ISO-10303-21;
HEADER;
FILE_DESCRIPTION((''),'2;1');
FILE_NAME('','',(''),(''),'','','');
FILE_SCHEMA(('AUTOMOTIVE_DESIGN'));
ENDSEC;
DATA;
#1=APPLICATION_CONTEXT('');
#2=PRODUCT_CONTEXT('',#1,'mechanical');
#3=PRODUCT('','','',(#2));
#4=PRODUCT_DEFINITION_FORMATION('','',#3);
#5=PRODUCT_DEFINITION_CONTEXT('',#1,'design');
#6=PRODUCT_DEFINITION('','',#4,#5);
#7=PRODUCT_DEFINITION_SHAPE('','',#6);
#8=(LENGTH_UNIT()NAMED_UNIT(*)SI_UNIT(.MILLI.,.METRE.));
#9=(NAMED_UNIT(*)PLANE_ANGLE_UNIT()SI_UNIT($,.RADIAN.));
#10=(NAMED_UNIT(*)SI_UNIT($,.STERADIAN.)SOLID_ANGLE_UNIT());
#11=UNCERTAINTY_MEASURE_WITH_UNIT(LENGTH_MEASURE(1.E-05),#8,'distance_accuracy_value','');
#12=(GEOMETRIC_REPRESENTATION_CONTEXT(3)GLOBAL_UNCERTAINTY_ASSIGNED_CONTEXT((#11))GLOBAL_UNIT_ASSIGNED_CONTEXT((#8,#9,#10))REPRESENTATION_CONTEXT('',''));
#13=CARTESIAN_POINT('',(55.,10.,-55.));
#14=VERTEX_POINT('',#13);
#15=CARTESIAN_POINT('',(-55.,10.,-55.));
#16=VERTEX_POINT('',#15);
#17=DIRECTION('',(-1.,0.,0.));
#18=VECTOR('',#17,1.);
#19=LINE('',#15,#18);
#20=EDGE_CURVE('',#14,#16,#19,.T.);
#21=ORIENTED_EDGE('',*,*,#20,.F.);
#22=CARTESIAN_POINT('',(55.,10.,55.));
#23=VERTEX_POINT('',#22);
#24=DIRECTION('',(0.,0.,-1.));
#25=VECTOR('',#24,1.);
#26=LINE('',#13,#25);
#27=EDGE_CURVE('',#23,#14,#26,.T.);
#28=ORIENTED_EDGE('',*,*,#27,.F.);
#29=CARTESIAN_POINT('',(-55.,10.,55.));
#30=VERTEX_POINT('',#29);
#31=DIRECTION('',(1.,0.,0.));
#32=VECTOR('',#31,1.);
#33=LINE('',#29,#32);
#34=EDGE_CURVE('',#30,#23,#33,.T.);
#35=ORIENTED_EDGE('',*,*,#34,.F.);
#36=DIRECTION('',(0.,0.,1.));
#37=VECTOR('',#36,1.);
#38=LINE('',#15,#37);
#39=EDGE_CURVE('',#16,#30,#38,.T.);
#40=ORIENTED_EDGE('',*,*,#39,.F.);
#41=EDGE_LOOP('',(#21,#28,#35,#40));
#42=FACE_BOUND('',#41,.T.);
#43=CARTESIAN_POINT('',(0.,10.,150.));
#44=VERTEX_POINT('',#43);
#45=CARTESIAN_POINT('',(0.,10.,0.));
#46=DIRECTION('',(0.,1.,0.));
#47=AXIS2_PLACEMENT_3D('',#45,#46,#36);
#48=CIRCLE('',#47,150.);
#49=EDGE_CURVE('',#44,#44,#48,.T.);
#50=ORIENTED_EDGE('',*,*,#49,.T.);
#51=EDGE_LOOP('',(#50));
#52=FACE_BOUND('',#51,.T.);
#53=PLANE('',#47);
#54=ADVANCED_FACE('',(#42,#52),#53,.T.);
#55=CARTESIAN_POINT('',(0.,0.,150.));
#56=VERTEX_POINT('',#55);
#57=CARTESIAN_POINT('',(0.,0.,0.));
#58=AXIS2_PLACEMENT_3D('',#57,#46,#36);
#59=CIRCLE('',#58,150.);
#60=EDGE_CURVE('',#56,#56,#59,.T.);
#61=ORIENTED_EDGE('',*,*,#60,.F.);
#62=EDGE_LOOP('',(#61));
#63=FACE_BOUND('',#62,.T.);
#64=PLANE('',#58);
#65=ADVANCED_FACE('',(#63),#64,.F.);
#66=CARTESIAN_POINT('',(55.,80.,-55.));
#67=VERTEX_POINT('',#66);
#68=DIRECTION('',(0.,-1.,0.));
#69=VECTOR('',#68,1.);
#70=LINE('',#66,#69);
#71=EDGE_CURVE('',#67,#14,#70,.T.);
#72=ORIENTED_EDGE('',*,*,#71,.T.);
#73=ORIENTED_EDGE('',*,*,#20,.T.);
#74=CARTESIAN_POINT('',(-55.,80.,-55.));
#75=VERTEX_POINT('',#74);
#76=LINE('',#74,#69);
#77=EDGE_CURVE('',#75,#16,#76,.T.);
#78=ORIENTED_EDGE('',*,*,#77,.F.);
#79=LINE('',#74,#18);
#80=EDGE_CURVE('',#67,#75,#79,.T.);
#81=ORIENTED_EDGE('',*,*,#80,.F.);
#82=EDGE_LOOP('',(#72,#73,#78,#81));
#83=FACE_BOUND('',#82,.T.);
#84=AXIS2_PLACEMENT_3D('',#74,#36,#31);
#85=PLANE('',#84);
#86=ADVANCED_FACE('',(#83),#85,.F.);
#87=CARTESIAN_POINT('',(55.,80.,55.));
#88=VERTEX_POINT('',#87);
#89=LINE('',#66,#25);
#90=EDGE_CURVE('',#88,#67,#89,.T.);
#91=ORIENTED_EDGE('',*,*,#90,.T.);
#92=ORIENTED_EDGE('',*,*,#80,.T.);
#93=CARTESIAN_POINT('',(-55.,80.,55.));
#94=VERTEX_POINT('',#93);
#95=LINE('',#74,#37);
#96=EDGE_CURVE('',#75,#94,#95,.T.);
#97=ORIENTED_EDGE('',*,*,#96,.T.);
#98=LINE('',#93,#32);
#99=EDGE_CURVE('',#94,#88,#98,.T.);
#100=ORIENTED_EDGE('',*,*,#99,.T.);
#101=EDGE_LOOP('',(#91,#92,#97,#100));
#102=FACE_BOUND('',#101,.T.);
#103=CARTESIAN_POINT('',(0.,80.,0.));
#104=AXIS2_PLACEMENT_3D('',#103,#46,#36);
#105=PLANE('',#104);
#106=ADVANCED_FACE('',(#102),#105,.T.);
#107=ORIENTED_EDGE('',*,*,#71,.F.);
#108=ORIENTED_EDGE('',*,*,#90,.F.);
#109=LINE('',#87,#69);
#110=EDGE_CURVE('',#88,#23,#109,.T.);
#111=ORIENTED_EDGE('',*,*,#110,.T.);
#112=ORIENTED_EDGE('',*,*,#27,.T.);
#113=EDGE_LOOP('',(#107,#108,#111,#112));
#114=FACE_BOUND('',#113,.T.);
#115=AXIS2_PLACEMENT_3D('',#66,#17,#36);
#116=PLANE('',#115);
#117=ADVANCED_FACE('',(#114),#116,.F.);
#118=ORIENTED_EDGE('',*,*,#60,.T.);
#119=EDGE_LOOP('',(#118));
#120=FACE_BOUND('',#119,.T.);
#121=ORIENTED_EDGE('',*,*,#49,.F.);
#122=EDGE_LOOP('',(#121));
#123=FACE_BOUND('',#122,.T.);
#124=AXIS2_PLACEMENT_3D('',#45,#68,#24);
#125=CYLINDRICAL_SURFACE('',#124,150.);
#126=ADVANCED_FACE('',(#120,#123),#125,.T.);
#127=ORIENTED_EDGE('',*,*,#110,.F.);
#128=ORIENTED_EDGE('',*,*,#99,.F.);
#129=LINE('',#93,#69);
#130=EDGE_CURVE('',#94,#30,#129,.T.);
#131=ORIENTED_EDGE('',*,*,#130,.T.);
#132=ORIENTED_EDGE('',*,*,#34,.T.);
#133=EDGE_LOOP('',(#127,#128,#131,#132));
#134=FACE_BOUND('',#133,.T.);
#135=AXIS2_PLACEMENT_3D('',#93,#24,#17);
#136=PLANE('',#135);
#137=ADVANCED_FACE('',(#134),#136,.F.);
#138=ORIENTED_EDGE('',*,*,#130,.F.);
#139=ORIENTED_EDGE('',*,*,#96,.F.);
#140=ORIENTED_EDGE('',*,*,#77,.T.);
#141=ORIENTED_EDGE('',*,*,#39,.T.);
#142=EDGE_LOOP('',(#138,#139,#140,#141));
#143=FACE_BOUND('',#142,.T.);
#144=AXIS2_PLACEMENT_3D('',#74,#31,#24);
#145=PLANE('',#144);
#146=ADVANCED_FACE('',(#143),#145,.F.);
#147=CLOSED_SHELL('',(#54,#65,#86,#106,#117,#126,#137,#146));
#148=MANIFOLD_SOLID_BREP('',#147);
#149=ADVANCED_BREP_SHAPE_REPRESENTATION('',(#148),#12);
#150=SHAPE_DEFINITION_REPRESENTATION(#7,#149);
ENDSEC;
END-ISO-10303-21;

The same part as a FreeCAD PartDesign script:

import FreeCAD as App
import Part
import Sketcher


def add_polygon(sketch, points):
    """Adds a closed chain of lines whose ends are joined by coincident constraints."""
    first, n = sketch.GeometryCount, len(points)
    for a, b in zip(points, points[1:] + points[:1]):
        sketch.addGeometry(Part.LineSegment(App.Vector(*a, 0), App.Vector(*b, 0)), False)
    for i in range(n):
        sketch.addConstraint(Sketcher.Constraint("Coincident", first + i, 2, first + (i + 1) % n, 1))

doc = App.newDocument("Part")
body = doc.addObject("PartDesign::Body", "Body")

# Sketch on XZ plane
sketch1 = doc.addObject("Sketcher::SketchObject", "Sketch")
body.addObject(sketch1)
sketch1.AttachmentSupport = (doc.XZ_Plane, [""])
sketch1.MapMode = "FlatFace"
sketch1.addGeometry(Part.Circle(App.Vector(0, 0, 0), App.Vector(0, 0, 1), 150), False)
sketch1.addConstraint(Sketcher.Constraint("Coincident", 0, 3, -1, 1))
sketch1.addConstraint(Sketcher.Constraint("Diameter", 0, 300.0))
pad1 = doc.addObject("PartDesign::Pad", "Pad")
body.addObject(pad1)
pad1.Profile = sketch1
pad1.Length = 10
pad1.Reversed = True

# Sketch on XZ plane
sketch2 = doc.addObject("Sketcher::SketchObject", "Sketch001")
body.addObject(sketch2)
sketch2.AttachmentSupport = (doc.XZ_Plane, [""])
sketch2.MapMode = "FlatFace"
sketch2.AttachmentOffset = App.Placement(App.Vector(0, 0, -10), App.Rotation())
add_polygon(sketch2, [(-55, -55), (-55, 55), (55, 55), (55, -55)])  # lines 0-3
sketch2.addConstraint(Sketcher.Constraint("Vertical", 0))
sketch2.addConstraint(Sketcher.Constraint("Horizontal", 1))
sketch2.addConstraint(Sketcher.Constraint("Vertical", 2))
sketch2.addConstraint(Sketcher.Constraint("Horizontal", 3))
sketch2.addConstraint(Sketcher.Constraint("Symmetric", 0, 2, 2, 2, -1, 1))
sketch2.addConstraint(Sketcher.Constraint("Equal", 3, 0))
sketch2.addConstraint(Sketcher.Constraint("DistanceX", 1, 1, 1, 2, 110.0))
pad2 = doc.addObject("PartDesign::Pad", "Pad001")
body.addObject(pad2)
pad2.Profile = sketch2
pad2.Length = 70
pad2.Reversed = True

doc.recompute()
